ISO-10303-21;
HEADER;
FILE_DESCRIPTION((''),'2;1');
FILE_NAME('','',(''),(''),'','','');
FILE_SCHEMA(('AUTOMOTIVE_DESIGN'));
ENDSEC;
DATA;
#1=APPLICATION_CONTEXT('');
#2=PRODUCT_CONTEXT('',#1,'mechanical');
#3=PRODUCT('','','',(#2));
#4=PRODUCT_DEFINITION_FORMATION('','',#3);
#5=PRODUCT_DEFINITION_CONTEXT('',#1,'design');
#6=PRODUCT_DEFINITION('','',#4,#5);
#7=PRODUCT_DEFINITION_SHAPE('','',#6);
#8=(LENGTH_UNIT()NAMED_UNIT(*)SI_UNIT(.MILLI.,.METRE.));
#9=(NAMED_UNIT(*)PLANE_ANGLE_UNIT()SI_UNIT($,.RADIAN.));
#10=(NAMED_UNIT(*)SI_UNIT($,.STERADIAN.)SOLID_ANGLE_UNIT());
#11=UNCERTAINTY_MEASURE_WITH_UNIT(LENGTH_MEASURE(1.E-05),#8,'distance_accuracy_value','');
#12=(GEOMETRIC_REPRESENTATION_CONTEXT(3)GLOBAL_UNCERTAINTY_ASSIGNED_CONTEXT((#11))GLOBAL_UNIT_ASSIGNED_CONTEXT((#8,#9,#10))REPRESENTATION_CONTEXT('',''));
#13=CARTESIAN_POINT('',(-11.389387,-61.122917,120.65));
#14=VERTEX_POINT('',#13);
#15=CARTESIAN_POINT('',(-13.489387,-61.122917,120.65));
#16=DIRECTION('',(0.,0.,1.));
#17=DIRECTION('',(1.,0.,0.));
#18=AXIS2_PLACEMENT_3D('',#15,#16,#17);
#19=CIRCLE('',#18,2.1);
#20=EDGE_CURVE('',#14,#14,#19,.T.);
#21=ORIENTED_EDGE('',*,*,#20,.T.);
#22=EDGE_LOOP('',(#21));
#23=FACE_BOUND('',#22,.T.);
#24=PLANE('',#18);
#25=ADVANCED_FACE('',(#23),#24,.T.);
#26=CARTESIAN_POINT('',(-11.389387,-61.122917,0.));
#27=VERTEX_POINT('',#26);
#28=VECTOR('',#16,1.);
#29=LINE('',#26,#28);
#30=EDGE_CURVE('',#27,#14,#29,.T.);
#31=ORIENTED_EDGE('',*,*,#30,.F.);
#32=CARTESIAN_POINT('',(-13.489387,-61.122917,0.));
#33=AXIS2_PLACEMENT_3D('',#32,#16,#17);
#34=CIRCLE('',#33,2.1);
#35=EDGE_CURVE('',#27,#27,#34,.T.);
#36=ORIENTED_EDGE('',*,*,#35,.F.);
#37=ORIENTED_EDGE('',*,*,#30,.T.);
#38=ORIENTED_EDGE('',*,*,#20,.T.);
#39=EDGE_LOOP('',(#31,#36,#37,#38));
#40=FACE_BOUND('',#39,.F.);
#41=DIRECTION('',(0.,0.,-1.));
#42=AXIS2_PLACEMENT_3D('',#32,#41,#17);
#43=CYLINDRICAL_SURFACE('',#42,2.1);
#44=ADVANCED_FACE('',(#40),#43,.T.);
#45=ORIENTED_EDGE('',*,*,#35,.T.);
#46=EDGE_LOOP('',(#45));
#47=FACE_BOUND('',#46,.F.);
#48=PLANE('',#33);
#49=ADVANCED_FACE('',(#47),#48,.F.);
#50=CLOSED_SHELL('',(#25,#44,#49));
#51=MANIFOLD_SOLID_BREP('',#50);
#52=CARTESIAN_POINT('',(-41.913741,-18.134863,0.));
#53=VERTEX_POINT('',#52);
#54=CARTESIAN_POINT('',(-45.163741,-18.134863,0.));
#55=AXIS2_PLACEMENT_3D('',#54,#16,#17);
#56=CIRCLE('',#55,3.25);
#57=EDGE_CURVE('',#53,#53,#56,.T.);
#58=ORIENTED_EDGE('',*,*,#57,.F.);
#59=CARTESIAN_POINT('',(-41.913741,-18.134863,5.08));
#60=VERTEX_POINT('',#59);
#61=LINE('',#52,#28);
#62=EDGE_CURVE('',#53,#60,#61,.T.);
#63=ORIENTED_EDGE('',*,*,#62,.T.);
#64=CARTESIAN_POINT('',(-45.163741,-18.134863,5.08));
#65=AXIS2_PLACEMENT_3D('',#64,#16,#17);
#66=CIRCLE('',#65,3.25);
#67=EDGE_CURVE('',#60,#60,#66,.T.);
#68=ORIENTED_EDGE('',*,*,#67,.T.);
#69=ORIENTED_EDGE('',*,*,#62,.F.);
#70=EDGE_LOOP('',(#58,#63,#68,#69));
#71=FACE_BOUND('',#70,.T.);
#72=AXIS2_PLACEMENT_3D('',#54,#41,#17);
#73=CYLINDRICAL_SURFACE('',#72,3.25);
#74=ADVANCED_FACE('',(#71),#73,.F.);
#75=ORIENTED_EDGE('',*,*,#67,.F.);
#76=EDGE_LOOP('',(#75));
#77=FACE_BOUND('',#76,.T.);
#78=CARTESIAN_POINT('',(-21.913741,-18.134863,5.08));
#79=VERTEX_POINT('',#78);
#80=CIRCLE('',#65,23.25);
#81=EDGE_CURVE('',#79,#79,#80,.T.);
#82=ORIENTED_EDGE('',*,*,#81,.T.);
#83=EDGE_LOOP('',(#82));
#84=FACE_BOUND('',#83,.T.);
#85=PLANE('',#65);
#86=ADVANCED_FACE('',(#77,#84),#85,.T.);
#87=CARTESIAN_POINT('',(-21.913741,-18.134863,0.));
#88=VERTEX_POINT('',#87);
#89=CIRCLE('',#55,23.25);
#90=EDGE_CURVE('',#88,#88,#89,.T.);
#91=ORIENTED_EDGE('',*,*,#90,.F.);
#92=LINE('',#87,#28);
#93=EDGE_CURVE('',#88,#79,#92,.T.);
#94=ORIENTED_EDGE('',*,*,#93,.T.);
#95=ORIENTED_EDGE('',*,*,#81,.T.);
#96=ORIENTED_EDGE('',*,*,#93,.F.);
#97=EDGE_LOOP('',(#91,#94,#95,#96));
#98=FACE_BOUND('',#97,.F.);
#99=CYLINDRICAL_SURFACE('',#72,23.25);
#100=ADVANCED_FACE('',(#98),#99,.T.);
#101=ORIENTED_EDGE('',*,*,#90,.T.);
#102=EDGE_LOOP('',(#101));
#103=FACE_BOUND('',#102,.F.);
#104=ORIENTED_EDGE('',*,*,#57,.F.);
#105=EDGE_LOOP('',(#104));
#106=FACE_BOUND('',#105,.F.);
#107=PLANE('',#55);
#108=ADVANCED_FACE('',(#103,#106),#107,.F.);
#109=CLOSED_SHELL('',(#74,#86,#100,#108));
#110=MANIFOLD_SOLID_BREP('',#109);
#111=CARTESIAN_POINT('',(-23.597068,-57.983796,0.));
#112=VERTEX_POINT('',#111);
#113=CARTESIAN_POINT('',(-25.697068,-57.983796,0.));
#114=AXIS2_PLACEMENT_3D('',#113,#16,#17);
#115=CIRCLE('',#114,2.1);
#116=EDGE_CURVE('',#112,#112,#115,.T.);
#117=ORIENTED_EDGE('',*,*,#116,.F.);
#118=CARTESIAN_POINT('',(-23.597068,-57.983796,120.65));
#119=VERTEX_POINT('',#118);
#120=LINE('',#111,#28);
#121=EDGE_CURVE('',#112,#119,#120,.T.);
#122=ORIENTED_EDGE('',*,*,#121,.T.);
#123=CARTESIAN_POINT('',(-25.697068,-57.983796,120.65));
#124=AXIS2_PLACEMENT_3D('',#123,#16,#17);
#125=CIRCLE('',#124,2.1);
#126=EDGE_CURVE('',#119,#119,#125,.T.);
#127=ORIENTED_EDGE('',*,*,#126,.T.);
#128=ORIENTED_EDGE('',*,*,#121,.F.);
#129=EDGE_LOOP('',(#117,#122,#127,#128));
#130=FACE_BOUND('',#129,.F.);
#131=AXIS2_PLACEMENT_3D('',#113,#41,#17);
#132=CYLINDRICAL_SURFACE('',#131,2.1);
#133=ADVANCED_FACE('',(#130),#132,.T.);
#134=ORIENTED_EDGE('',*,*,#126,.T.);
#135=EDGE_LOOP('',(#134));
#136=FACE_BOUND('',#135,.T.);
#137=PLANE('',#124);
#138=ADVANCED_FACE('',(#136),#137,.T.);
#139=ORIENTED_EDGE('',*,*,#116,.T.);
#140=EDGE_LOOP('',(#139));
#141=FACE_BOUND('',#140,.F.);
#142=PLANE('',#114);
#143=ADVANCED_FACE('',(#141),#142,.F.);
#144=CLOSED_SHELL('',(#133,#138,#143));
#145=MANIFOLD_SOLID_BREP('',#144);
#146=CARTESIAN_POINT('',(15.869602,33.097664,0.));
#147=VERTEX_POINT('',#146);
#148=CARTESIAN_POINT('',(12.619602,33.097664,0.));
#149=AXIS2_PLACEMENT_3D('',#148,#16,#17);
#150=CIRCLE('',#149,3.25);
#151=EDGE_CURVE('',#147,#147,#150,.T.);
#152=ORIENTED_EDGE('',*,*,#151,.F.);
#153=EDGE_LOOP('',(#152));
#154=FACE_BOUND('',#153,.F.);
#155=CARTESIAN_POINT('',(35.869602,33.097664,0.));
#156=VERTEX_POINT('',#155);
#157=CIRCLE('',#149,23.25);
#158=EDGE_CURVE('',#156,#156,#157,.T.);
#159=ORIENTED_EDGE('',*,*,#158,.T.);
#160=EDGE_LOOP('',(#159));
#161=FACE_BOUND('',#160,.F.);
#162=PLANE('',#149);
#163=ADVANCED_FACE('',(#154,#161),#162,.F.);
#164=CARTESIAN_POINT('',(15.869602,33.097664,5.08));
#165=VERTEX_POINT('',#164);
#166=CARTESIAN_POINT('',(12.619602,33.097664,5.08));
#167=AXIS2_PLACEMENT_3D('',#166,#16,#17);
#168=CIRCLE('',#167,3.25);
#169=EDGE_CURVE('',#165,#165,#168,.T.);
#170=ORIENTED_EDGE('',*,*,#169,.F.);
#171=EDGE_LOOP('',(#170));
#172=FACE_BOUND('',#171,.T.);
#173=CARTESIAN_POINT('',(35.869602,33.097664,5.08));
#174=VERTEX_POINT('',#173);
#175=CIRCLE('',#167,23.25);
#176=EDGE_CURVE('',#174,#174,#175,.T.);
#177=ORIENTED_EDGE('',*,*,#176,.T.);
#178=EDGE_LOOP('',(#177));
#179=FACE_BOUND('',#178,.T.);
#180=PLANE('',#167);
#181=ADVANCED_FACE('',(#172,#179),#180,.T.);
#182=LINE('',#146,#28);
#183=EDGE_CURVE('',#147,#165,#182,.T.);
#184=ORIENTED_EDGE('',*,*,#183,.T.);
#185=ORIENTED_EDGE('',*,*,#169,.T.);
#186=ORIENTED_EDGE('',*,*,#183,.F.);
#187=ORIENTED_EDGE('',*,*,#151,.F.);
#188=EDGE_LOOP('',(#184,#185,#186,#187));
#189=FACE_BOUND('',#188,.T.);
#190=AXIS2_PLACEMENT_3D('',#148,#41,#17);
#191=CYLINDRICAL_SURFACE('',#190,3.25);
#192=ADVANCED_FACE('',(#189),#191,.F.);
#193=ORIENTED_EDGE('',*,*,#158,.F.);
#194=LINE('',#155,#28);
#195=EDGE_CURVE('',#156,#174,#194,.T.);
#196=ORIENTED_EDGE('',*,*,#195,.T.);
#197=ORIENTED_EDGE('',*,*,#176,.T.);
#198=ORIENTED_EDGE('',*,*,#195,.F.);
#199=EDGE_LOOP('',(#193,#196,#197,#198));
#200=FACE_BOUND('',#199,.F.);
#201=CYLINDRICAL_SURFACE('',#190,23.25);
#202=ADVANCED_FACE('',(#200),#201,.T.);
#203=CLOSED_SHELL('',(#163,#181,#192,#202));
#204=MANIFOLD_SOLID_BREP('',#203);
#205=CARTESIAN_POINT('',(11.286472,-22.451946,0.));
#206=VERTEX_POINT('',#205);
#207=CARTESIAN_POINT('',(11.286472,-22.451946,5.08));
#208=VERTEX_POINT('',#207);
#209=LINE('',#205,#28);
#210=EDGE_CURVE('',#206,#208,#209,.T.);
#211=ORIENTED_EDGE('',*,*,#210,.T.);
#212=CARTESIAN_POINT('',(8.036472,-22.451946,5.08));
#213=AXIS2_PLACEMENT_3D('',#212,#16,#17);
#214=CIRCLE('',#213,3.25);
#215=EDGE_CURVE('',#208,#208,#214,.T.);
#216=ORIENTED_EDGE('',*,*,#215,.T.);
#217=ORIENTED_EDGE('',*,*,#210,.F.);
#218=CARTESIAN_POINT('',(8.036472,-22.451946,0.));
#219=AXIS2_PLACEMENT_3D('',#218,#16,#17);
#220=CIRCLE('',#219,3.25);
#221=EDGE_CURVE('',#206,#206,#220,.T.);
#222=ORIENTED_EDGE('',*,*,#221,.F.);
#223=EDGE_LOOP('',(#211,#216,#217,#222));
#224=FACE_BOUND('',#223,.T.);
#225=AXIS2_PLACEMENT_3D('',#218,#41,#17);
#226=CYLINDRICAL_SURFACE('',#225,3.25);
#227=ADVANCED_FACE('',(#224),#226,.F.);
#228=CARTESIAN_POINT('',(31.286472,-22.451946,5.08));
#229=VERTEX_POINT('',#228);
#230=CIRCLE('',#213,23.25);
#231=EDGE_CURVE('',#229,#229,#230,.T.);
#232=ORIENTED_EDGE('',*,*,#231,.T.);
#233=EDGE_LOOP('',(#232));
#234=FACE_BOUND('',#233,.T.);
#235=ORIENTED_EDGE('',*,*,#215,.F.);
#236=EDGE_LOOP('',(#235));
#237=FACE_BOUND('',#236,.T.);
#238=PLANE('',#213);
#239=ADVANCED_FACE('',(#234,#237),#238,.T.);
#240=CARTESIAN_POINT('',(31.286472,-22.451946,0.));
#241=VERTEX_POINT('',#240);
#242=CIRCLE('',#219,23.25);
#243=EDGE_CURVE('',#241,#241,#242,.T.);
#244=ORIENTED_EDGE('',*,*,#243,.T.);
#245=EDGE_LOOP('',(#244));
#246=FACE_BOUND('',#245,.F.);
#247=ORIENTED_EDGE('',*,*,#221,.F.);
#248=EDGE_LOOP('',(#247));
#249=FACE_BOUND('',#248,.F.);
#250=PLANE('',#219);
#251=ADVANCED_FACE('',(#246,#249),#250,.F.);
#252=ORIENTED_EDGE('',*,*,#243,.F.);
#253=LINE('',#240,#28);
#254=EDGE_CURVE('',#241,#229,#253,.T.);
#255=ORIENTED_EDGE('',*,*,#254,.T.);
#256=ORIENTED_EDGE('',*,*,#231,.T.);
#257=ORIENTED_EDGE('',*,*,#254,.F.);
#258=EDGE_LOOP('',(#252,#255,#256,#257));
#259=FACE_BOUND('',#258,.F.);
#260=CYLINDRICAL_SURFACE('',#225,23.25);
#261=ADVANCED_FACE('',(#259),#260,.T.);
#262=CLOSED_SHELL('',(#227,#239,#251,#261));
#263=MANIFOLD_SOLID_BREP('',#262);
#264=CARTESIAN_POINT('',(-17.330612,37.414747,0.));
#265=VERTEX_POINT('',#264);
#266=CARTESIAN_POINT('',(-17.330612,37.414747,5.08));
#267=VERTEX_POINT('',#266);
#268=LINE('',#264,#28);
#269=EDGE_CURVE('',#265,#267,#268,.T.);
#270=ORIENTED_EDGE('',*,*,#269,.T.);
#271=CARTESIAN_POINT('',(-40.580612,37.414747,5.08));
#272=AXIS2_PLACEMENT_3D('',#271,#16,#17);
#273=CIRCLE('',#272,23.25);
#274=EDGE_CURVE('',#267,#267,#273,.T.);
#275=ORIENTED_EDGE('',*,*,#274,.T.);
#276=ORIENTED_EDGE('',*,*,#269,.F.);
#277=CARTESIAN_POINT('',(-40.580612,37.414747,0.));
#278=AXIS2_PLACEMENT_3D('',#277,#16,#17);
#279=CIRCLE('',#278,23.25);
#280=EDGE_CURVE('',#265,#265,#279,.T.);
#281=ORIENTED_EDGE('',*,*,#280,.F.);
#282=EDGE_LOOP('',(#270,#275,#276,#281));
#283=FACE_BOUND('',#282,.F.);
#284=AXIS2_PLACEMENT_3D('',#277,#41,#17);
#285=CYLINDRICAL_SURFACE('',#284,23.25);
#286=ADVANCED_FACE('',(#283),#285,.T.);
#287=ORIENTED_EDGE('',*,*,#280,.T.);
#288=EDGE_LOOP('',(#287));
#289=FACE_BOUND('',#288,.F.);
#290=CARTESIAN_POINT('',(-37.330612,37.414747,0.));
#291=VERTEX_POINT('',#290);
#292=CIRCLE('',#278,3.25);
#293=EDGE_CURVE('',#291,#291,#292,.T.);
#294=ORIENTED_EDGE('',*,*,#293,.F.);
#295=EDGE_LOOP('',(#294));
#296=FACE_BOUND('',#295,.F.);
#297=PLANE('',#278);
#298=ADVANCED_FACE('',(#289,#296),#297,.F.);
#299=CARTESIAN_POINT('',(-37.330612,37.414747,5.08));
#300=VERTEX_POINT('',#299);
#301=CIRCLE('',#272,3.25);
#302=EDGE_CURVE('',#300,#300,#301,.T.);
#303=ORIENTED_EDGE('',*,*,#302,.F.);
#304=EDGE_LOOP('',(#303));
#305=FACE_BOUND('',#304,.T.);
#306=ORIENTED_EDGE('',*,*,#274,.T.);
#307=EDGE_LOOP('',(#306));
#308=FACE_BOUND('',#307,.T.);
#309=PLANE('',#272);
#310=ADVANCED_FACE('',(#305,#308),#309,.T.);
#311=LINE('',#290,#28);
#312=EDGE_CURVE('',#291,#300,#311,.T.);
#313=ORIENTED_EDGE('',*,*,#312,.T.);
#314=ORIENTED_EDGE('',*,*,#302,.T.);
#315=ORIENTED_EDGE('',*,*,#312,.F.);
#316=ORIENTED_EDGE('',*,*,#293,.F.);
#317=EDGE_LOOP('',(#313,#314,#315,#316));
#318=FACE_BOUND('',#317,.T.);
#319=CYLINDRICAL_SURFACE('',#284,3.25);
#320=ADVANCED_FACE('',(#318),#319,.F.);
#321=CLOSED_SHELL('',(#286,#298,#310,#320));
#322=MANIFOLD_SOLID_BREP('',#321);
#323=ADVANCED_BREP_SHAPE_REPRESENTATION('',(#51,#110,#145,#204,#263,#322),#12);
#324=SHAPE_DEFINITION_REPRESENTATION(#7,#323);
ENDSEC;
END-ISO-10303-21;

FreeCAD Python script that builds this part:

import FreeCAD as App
import Part
import Sketcher
from FreeCAD import Vector
Q = App.Units.Quantity

doc = App.newDocument("Part")
params = doc.addObject("Spreadsheet::Sheet", "Params")
for row, (alias, value) in enumerate([
    ("sketch1_diameter", "46.5 mm"),
    ("sketch1_diameter2", "6.5 mm"),
    ("pad1_length", "5.08 mm"),
    ("sketch2_diameter", "4.2 mm"),
    ("pad2_length", "120.65 mm"),
], start=1):
    params.set(f"A{row}", alias)
    params.set(f"B{row}", "=" + value)
    params.setAlias(f"B{row}", alias)

body = doc.addObject("PartDesign::Body", "Body")
body.AllowCompound = True

# Sketch on XY plane
sketch1 = body.newObject("Sketcher::SketchObject", "Sketch")
sketch1.AttachmentSupport = (doc.getObject("XY_Plane"), [""])
sketch1.MapMode = "FlatFace"
sketch1.addGeometry([
    Part.Circle(Vector(-40.6, 37.4, 0), Vector(0, 0, 1), 23.2),  # 0
    Part.Circle(Vector(-40.6, 37.4, 0), Vector(0, 0, 1), 3.2),  # 1
    Part.Circle(Vector(12.6, 33.1, 0), Vector(0, 0, 1), 23.2),  # 2
    Part.Circle(Vector(12.6, 33.1, 0), Vector(0, 0, 1), 3.2),  # 3
    Part.Circle(Vector(-45.2, -18.1, 0), Vector(0, 0, 1), 23.2),  # 4
    Part.Circle(Vector(-45.2, -18.1, 0), Vector(0, 0, 1), 3.2),  # 5
    Part.Circle(Vector(8, -22.5, 0), Vector(0, 0, 1), 23.2),  # 6
    Part.Circle(Vector(8, -22.5, 0), Vector(0, 0, 1), 3.2),  # 7
], False)
sketch1.addConstraint([
    Sketcher.Constraint("Coincident", 1, 3, 0, 3),
    Sketcher.Constraint("Coincident", 3, 3, 2, 3),
    Sketcher.Constraint("Coincident", 5, 3, 4, 3),
    Sketcher.Constraint("Coincident", 7, 3, 6, 3),
    Sketcher.Constraint("Equal", 0, 2),
    Sketcher.Constraint("Equal", 1, 3),
    Sketcher.Constraint("Equal", 2, 4),
    Sketcher.Constraint("Equal", 3, 5),
    Sketcher.Constraint("Equal", 4, 6),
    Sketcher.Constraint("Equal", 5, 7),
    Sketcher.Constraint("Diameter", 0, Q("46.5 mm")),
    Sketcher.Constraint("Diameter", 1, Q("6.5 mm")),
    Sketcher.Constraint("DistanceX", 4, 3, -1, 1, Q("45.163741 mm")),
    Sketcher.Constraint("DistanceX", 4, 3, 0, 3, Q("4.583129 mm")),
    Sketcher.Constraint("DistanceY", 4, 3, 0, 3, Q("55.54961 mm")),
    Sketcher.Constraint("DistanceX", 6, 3, 2, 3, Q("4.58313 mm")),
    Sketcher.Constraint("DistanceY", 6, 3, 2, 3, Q("55.54961 mm")),
    Sketcher.Constraint("DistanceY", -1, 1, 0, 3, Q("37.414747 mm")),
    Sketcher.Constraint("DistanceX", -1, 1, 2, 3, Q("12.619602 mm")),
    Sketcher.Constraint("DistanceY", -1, 1, 2, 3, Q("33.097664 mm")),
])
sketch1.setExpression("Constraints[10]", "Params.sketch1_diameter")
sketch1.setExpression("Constraints[11]", "Params.sketch1_diameter2")
pad1 = body.newObject("PartDesign::Pad", "Pad")
pad1.Profile = sketch1
pad1.setExpression("Length", "Params.pad1_length")
body2 = doc.addObject("PartDesign::Body", "Body001")
body2.AllowCompound = True

# Sketch on XY plane
sketch2 = body2.newObject("Sketcher::SketchObject", "Sketch001")
sketch2.AttachmentSupport = (doc.getObject("XY_Plane001"), [""])
sketch2.MapMode = "FlatFace"
sketch2.addGeometry([
    Part.Circle(Vector(-25.7, -58, 0), Vector(0, 0, 1), 2.1),
    Part.Circle(Vector(-13.5, -61.1, 0), Vector(0, 0, 1), 2.1),
], False)
sketch2.addConstraint([
    Sketcher.Constraint("Equal", 0, 1),
    Sketcher.Constraint("Diameter", 0, Q("4.2 mm")),
    Sketcher.Constraint("DistanceX", 0, 3, -1, 1, Q("25.697068 mm")),
    Sketcher.Constraint("DistanceX", 0, 3, 1, 3, Q("12.207681 mm")),
    Sketcher.Constraint("DistanceY", 1, 3, 0, 3, Q("3.139121 mm")),
    Sketcher.Constraint("DistanceY", 0, 3, -1, 1, Q("57.983796 mm")),
])
sketch2.setExpression("Constraints[1]", "Params.sketch2_diameter")
pad2 = body2.newObject("PartDesign::Pad", "Pad001")
pad2.Profile = sketch2
pad2.setExpression("Length", "Params.pad2_length")

doc.recompute()
